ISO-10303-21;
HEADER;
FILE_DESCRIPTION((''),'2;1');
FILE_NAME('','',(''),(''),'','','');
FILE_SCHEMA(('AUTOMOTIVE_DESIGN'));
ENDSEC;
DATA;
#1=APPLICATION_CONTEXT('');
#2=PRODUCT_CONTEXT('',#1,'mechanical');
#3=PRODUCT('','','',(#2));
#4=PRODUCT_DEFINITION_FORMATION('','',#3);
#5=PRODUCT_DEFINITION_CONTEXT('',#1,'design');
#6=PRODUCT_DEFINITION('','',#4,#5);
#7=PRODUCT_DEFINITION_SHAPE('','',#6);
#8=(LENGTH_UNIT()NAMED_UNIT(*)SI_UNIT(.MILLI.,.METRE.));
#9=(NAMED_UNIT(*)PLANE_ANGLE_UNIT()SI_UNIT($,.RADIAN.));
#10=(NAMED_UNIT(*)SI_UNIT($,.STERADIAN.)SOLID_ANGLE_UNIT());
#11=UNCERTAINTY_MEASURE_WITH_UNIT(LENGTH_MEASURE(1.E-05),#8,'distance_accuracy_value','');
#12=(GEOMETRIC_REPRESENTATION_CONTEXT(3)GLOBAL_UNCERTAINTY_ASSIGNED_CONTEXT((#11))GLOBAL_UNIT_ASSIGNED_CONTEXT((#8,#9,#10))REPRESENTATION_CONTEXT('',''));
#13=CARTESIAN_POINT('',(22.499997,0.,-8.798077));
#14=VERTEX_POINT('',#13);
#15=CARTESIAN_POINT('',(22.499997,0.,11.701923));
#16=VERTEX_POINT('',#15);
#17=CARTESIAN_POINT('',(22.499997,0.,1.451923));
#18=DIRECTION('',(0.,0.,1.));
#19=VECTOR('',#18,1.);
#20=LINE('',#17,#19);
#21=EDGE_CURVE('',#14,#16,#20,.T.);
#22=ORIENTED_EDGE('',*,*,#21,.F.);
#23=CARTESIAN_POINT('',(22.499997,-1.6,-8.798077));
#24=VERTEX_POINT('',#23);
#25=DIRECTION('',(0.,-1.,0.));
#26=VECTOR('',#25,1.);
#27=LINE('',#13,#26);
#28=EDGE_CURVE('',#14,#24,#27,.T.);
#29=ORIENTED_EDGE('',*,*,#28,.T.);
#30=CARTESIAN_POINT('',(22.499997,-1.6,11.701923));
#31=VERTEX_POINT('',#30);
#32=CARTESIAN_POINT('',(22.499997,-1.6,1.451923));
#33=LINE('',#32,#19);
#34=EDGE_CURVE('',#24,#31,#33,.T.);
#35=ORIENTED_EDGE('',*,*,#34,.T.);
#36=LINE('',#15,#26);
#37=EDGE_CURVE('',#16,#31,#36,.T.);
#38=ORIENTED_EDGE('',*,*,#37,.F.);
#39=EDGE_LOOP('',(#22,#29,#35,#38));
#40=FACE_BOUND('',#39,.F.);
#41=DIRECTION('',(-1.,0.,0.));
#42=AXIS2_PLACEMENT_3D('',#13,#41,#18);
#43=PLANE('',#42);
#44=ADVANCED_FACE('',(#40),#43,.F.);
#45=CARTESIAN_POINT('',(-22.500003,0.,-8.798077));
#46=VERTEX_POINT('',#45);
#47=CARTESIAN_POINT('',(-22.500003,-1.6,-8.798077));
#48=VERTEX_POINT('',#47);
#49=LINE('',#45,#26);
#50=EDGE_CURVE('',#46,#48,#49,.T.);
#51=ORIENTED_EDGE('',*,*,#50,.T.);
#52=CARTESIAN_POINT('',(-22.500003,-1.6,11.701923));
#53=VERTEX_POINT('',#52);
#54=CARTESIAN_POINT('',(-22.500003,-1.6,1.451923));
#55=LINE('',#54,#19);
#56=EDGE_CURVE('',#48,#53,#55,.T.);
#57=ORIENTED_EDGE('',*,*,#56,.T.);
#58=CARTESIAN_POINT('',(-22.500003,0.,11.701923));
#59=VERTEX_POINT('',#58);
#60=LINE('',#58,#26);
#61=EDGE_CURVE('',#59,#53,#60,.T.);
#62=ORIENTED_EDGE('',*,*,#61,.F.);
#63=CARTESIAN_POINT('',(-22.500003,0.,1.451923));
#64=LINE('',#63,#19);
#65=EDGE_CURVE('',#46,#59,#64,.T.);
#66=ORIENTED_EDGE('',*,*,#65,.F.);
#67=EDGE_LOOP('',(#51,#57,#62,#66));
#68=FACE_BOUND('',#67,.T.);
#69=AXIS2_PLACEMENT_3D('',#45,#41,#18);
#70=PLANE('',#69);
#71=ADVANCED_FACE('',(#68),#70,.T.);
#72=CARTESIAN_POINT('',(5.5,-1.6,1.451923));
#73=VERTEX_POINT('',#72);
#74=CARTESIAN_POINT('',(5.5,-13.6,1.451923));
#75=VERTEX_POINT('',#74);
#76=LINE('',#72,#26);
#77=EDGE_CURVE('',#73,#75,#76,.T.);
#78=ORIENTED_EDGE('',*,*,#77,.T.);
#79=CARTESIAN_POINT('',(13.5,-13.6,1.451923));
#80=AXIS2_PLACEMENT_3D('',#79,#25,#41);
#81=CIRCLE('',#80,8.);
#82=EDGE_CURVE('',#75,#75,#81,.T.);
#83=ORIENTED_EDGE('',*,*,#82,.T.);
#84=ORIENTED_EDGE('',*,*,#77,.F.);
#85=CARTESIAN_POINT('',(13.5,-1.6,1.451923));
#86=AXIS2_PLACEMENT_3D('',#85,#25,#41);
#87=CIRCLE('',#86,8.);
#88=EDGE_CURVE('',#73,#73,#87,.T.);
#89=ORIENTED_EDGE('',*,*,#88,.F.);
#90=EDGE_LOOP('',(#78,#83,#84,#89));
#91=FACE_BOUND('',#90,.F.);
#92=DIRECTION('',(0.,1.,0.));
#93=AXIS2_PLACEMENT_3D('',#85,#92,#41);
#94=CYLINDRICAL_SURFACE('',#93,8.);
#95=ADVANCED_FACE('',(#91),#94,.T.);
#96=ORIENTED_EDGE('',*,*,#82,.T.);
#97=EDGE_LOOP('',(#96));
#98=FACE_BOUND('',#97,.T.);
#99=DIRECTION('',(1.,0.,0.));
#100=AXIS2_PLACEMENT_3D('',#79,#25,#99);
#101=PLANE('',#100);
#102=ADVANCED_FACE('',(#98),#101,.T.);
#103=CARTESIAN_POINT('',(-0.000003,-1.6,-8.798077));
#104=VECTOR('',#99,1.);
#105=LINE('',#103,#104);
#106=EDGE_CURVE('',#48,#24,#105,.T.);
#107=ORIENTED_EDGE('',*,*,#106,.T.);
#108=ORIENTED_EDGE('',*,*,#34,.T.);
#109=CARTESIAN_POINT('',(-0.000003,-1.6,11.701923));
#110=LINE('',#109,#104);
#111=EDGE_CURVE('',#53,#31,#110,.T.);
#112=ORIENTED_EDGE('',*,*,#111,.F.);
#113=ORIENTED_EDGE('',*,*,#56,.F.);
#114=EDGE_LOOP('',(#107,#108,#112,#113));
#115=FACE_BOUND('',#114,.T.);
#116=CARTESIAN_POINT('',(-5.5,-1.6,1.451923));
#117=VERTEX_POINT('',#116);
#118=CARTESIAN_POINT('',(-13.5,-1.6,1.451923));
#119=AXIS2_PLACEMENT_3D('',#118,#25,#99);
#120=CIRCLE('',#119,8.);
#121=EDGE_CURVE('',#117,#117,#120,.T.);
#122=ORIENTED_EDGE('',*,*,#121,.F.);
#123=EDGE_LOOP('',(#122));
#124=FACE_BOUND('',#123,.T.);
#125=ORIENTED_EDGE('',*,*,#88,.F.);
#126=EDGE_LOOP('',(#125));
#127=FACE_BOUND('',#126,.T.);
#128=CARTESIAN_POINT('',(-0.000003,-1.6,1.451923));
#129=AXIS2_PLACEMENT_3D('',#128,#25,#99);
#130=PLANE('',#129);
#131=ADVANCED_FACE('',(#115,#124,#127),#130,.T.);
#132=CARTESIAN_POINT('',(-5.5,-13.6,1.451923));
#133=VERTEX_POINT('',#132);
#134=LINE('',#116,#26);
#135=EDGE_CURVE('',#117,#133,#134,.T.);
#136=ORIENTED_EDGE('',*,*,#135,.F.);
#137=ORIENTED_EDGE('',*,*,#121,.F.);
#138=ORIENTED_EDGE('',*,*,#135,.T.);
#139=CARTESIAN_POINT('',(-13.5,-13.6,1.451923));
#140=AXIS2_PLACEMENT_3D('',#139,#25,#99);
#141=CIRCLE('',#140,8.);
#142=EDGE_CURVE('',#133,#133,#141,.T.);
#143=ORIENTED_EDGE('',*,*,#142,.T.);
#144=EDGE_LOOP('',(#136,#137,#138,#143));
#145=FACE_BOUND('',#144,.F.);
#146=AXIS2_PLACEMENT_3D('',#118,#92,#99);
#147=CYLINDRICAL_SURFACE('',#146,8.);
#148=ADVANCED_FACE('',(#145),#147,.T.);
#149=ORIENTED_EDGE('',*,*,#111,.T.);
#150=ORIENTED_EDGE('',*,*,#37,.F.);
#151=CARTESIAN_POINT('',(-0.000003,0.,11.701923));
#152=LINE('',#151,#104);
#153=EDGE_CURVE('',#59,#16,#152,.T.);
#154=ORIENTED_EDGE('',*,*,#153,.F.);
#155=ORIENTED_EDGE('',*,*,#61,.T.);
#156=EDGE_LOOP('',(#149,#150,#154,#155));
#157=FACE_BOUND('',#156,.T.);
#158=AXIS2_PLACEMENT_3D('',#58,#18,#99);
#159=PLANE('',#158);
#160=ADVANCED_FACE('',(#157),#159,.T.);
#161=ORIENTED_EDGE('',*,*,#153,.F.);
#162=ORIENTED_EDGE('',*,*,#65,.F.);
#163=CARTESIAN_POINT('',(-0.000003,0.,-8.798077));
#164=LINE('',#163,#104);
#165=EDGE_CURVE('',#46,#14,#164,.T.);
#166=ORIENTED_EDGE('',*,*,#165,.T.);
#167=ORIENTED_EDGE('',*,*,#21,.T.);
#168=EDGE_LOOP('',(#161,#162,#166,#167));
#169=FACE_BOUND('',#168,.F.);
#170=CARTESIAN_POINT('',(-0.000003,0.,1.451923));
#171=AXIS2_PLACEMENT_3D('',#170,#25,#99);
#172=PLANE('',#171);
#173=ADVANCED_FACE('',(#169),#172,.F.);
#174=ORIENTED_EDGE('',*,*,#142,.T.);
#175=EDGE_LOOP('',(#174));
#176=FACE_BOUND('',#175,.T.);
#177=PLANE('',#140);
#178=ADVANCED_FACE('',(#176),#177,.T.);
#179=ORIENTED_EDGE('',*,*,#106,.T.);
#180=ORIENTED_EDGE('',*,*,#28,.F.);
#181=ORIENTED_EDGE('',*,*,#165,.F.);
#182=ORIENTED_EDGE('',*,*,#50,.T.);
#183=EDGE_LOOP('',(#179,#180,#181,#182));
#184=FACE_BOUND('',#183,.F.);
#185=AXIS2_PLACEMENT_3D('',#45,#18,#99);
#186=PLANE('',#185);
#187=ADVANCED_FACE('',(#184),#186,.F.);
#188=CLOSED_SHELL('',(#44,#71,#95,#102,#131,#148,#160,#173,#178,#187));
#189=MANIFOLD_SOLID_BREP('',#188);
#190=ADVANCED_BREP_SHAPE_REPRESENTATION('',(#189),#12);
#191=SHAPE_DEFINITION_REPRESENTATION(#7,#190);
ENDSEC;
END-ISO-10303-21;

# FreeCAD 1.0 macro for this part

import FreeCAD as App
import Part
import Sketcher


def add_polygon(sketch, points):
    """Adds a closed chain of lines whose ends are joined by coincident constraints."""
    first, n = sketch.GeometryCount, len(points)
    for a, b in zip(points, points[1:] + points[:1]):
        sketch.addGeometry(Part.LineSegment(App.Vector(*a, 0), App.Vector(*b, 0)), False)
    for i in range(n):
        sketch.addConstraint(Sketcher.Constraint("Coincident", first + i, 2, first + (i + 1) % n, 1))

doc = App.newDocument("Part")
body = doc.addObject("PartDesign::Body", "Body")

sketch1 = doc.addObject("Sketcher::SketchObject", "Sketch")
body.addObject(sketch1)
sketch1.AttachmentSupport = (doc.XZ_Plane, [""])
sketch1.MapMode = "FlatFace"
add_polygon(sketch1, [(-22.500003, 11.701923), (-22.500003, -8.798077), (22.499997, -8.798077), (22.499997, 11.701923)])
sketch1.addConstraint([
    Sketcher.Constraint("Vertical", 0),
    Sketcher.Constraint("Horizontal", 1),
    Sketcher.Constraint("Vertical", 2),
    Sketcher.Constraint("Horizontal", 3),
    Sketcher.Constraint("DistanceX", 1, 1, 1, 2, 45.0),
    Sketcher.Constraint("DistanceY", 0, 2, 0, 1, 20.5),
    Sketcher.Constraint("DistanceX", 0, 2, -1, 1, 22.500003),
    Sketcher.Constraint("DistanceY", 0, 2, -1, 1, 8.798077),
])
pad1 = doc.addObject("PartDesign::Pad", "Pad")
body.addObject(pad1)
pad1.Profile = sketch1
pad1.Length = 1.6

sketch2 = doc.addObject("Sketcher::SketchObject", "Sketch001")
body.addObject(sketch2)
sketch2.AttachmentSupport = (doc.XZ_Plane, [""])
sketch2.MapMode = "FlatFace"
sketch2.AttachmentOffset = App.Placement(App.Vector(0, 0, 1.6), App.Rotation())
sketch2.addGeometry([
    Part.Circle(App.Vector(-13.5, 1.451923, 0), App.Vector(0, 0, 1), 8),
    Part.Circle(App.Vector(13.5, 1.451923, 0), App.Vector(0, 0, 1), 8),
], False)
sketch2.addConstraint([
    Sketcher.Constraint("Equal", 0, 1),
    Sketcher.Constraint("Symmetric", 0, 3, 1, 3, -2),
    Sketcher.Constraint("Diameter", 0, 16.0),
    Sketcher.Constraint("DistanceX", 0, 3, 1, 3, 27.0),
    Sketcher.Constraint("DistanceY", -1, 1, 0, 3, 1.451923),
])
pad2 = doc.addObject("PartDesign::Pad", "Pad001")
body.addObject(pad2)
pad2.Profile = sketch2
pad2.Length = 12

doc.recompute()
